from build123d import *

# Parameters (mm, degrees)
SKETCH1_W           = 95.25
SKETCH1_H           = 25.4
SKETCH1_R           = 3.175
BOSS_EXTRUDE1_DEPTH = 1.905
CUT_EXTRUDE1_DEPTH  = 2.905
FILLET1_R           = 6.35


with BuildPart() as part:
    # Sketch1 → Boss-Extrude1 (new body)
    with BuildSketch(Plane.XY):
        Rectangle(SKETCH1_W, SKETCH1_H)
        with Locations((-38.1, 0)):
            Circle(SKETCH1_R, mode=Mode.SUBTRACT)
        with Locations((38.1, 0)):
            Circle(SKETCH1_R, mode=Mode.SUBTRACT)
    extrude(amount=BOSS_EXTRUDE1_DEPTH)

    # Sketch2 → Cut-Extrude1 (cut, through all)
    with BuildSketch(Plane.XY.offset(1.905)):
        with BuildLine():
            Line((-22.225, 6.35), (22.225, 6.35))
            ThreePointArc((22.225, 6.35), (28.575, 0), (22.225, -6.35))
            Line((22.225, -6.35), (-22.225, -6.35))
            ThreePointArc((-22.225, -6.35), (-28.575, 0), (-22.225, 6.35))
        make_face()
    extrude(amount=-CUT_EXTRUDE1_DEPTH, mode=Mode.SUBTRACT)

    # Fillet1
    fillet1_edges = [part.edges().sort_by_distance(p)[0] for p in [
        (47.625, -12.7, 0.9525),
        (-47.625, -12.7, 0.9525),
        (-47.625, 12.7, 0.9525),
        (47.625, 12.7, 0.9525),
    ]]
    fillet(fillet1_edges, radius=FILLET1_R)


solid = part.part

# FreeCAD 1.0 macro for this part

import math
import FreeCAD as App
import Part
import Sketcher

V = App.Vector
Q = App.Units.Quantity


def edges_at(feature, points):
    """Names of the edges that pass closest to the given points."""
    edges = feature.Shape.Edges
    near = lambda p: min(range(len(edges)), key=lambda i: edges[i].distToShape(Part.Vertex(*p))[0])
    return sorted({f"Edge{near(p) + 1}" for p in points})

doc = App.newDocument("Part")
body = doc.addObject("PartDesign::Body", "Body")

sketch1 = body.newObject("Sketcher::SketchObject", "Sketch")
sketch1.AttachmentSupport = (doc.getObject("XY_Plane"), [""])
sketch1.MapMode = "FlatFace"
sketch1.addGeometry([
    Part.LineSegment(V(-47.6, 12.7, 0), V(-47.6, -12.7, 0)),
    Part.LineSegment(V(-47.6, -12.7, 0), V(47.6, -12.7, 0)),
    Part.LineSegment(V(47.6, -12.7, 0), V(47.6, 12.7, 0)),
    Part.LineSegment(V(47.6, 12.7, 0), V(-47.6, 12.7, 0)),
    Part.Circle(V(-38.1, 0, 0), V(0, 0, 1), 3.2),
    Part.Circle(V(38.1, 0, 0), V(0, 0, 1), 3.2),
], False)
sketch1.addConstraint([
    Sketcher.Constraint("Coincident", 0, 2, 1, 1),
    Sketcher.Constraint("Coincident", 1, 2, 2, 1),
    Sketcher.Constraint("Coincident", 2, 2, 3, 1),
    Sketcher.Constraint("Coincident", 3, 2, 0, 1),
    Sketcher.Constraint("Vertical", 0),
    Sketcher.Constraint("Horizontal", 1),
    Sketcher.Constraint("Vertical", 2),
    Sketcher.Constraint("Horizontal", 3),
    Sketcher.Constraint("Equal", 4, 5),
    Sketcher.Constraint("Symmetric", 4, 3, 5, 3, -1, 1),
    Sketcher.Constraint("Symmetric", 0, 2, 2, 2, -1, 1),
    Sketcher.Constraint("PointOnObject", 4, 3, -1),
    Sketcher.Constraint("Diameter", 4, Q("0.25 in")),
    Sketcher.Constraint("DistanceY", 0, 2, 0, 1, Q("1 in")),
    Sketcher.Constraint("DistanceX", 4, 3, 5, 3, Q("3 in")),
    Sketcher.Constraint("DistanceX", 1, 1, 1, 2, Q("3.75 in")),
])
pad1 = body.newObject("PartDesign::Pad", "Pad")
pad1.Profile = sketch1
pad1.Length = Q("0.075 in")

sketch2 = body.newObject("Sketcher::SketchObject", "Sketch001")
sketch2.AttachmentSupport = (doc.getObject("XY_Plane"), [""])
sketch2.MapMode = "FlatFace"
sketch2.AttachmentOffset = App.Placement(V(0, 0, 0.075 * 25.4), App.Rotation())
sketch2.addGeometry([
    Part.LineSegment(V(22, 6, 0), V(-22, 6, 0)),
    Part.ArcOfCircle(Part.Circle(V(-22, 0, 0), V(0, 0, 1), 6), math.radians(90), math.radians(270)),
    Part.LineSegment(V(-22, -6, 0), V(22, -6, 0)),
    Part.ArcOfCircle(Part.Circle(V(22, 0, 0), V(0, 0, 1), 6), math.radians(-90), math.radians(90)),
], False)
sketch2.addConstraint([
    Sketcher.Constraint("Tangent", 0, 2, 1, 1),
    Sketcher.Constraint("Tangent", 1, 2, 2, 1),
    Sketcher.Constraint("Tangent", 2, 2, 3, 1),
    Sketcher.Constraint("Tangent", 3, 2, 0, 1),
    Sketcher.Constraint("Horizontal", 0),
    Sketcher.Constraint("Horizontal", 2),
    Sketcher.Constraint("Symmetric", 1, 3, 3, 3, -1, 1),
    Sketcher.Constraint("Radius", 1, Q("0.25 in")),
    Sketcher.Constraint("DistanceX", 0, 2, 0, 1, Q("1.75 in")),
])
pocket1 = body.newObject("PartDesign::Pocket", "Pocket")
pocket1.Profile = sketch2
pocket1.Type = "ThroughAll"
doc.recompute()

fillet = body.newObject("PartDesign::Fillet", "Fillet")
fillet.Base = (pocket1, edges_at(pocket1, [
    (47.625, -12.7, 0.953),
    (-47.625, -12.7, 0.953),
    (-47.625, 12.7, 0.953),
    (47.625, 12.7, 0.953),
]))
fillet.Radius = Q("0.25 in")

doc.recompute()
